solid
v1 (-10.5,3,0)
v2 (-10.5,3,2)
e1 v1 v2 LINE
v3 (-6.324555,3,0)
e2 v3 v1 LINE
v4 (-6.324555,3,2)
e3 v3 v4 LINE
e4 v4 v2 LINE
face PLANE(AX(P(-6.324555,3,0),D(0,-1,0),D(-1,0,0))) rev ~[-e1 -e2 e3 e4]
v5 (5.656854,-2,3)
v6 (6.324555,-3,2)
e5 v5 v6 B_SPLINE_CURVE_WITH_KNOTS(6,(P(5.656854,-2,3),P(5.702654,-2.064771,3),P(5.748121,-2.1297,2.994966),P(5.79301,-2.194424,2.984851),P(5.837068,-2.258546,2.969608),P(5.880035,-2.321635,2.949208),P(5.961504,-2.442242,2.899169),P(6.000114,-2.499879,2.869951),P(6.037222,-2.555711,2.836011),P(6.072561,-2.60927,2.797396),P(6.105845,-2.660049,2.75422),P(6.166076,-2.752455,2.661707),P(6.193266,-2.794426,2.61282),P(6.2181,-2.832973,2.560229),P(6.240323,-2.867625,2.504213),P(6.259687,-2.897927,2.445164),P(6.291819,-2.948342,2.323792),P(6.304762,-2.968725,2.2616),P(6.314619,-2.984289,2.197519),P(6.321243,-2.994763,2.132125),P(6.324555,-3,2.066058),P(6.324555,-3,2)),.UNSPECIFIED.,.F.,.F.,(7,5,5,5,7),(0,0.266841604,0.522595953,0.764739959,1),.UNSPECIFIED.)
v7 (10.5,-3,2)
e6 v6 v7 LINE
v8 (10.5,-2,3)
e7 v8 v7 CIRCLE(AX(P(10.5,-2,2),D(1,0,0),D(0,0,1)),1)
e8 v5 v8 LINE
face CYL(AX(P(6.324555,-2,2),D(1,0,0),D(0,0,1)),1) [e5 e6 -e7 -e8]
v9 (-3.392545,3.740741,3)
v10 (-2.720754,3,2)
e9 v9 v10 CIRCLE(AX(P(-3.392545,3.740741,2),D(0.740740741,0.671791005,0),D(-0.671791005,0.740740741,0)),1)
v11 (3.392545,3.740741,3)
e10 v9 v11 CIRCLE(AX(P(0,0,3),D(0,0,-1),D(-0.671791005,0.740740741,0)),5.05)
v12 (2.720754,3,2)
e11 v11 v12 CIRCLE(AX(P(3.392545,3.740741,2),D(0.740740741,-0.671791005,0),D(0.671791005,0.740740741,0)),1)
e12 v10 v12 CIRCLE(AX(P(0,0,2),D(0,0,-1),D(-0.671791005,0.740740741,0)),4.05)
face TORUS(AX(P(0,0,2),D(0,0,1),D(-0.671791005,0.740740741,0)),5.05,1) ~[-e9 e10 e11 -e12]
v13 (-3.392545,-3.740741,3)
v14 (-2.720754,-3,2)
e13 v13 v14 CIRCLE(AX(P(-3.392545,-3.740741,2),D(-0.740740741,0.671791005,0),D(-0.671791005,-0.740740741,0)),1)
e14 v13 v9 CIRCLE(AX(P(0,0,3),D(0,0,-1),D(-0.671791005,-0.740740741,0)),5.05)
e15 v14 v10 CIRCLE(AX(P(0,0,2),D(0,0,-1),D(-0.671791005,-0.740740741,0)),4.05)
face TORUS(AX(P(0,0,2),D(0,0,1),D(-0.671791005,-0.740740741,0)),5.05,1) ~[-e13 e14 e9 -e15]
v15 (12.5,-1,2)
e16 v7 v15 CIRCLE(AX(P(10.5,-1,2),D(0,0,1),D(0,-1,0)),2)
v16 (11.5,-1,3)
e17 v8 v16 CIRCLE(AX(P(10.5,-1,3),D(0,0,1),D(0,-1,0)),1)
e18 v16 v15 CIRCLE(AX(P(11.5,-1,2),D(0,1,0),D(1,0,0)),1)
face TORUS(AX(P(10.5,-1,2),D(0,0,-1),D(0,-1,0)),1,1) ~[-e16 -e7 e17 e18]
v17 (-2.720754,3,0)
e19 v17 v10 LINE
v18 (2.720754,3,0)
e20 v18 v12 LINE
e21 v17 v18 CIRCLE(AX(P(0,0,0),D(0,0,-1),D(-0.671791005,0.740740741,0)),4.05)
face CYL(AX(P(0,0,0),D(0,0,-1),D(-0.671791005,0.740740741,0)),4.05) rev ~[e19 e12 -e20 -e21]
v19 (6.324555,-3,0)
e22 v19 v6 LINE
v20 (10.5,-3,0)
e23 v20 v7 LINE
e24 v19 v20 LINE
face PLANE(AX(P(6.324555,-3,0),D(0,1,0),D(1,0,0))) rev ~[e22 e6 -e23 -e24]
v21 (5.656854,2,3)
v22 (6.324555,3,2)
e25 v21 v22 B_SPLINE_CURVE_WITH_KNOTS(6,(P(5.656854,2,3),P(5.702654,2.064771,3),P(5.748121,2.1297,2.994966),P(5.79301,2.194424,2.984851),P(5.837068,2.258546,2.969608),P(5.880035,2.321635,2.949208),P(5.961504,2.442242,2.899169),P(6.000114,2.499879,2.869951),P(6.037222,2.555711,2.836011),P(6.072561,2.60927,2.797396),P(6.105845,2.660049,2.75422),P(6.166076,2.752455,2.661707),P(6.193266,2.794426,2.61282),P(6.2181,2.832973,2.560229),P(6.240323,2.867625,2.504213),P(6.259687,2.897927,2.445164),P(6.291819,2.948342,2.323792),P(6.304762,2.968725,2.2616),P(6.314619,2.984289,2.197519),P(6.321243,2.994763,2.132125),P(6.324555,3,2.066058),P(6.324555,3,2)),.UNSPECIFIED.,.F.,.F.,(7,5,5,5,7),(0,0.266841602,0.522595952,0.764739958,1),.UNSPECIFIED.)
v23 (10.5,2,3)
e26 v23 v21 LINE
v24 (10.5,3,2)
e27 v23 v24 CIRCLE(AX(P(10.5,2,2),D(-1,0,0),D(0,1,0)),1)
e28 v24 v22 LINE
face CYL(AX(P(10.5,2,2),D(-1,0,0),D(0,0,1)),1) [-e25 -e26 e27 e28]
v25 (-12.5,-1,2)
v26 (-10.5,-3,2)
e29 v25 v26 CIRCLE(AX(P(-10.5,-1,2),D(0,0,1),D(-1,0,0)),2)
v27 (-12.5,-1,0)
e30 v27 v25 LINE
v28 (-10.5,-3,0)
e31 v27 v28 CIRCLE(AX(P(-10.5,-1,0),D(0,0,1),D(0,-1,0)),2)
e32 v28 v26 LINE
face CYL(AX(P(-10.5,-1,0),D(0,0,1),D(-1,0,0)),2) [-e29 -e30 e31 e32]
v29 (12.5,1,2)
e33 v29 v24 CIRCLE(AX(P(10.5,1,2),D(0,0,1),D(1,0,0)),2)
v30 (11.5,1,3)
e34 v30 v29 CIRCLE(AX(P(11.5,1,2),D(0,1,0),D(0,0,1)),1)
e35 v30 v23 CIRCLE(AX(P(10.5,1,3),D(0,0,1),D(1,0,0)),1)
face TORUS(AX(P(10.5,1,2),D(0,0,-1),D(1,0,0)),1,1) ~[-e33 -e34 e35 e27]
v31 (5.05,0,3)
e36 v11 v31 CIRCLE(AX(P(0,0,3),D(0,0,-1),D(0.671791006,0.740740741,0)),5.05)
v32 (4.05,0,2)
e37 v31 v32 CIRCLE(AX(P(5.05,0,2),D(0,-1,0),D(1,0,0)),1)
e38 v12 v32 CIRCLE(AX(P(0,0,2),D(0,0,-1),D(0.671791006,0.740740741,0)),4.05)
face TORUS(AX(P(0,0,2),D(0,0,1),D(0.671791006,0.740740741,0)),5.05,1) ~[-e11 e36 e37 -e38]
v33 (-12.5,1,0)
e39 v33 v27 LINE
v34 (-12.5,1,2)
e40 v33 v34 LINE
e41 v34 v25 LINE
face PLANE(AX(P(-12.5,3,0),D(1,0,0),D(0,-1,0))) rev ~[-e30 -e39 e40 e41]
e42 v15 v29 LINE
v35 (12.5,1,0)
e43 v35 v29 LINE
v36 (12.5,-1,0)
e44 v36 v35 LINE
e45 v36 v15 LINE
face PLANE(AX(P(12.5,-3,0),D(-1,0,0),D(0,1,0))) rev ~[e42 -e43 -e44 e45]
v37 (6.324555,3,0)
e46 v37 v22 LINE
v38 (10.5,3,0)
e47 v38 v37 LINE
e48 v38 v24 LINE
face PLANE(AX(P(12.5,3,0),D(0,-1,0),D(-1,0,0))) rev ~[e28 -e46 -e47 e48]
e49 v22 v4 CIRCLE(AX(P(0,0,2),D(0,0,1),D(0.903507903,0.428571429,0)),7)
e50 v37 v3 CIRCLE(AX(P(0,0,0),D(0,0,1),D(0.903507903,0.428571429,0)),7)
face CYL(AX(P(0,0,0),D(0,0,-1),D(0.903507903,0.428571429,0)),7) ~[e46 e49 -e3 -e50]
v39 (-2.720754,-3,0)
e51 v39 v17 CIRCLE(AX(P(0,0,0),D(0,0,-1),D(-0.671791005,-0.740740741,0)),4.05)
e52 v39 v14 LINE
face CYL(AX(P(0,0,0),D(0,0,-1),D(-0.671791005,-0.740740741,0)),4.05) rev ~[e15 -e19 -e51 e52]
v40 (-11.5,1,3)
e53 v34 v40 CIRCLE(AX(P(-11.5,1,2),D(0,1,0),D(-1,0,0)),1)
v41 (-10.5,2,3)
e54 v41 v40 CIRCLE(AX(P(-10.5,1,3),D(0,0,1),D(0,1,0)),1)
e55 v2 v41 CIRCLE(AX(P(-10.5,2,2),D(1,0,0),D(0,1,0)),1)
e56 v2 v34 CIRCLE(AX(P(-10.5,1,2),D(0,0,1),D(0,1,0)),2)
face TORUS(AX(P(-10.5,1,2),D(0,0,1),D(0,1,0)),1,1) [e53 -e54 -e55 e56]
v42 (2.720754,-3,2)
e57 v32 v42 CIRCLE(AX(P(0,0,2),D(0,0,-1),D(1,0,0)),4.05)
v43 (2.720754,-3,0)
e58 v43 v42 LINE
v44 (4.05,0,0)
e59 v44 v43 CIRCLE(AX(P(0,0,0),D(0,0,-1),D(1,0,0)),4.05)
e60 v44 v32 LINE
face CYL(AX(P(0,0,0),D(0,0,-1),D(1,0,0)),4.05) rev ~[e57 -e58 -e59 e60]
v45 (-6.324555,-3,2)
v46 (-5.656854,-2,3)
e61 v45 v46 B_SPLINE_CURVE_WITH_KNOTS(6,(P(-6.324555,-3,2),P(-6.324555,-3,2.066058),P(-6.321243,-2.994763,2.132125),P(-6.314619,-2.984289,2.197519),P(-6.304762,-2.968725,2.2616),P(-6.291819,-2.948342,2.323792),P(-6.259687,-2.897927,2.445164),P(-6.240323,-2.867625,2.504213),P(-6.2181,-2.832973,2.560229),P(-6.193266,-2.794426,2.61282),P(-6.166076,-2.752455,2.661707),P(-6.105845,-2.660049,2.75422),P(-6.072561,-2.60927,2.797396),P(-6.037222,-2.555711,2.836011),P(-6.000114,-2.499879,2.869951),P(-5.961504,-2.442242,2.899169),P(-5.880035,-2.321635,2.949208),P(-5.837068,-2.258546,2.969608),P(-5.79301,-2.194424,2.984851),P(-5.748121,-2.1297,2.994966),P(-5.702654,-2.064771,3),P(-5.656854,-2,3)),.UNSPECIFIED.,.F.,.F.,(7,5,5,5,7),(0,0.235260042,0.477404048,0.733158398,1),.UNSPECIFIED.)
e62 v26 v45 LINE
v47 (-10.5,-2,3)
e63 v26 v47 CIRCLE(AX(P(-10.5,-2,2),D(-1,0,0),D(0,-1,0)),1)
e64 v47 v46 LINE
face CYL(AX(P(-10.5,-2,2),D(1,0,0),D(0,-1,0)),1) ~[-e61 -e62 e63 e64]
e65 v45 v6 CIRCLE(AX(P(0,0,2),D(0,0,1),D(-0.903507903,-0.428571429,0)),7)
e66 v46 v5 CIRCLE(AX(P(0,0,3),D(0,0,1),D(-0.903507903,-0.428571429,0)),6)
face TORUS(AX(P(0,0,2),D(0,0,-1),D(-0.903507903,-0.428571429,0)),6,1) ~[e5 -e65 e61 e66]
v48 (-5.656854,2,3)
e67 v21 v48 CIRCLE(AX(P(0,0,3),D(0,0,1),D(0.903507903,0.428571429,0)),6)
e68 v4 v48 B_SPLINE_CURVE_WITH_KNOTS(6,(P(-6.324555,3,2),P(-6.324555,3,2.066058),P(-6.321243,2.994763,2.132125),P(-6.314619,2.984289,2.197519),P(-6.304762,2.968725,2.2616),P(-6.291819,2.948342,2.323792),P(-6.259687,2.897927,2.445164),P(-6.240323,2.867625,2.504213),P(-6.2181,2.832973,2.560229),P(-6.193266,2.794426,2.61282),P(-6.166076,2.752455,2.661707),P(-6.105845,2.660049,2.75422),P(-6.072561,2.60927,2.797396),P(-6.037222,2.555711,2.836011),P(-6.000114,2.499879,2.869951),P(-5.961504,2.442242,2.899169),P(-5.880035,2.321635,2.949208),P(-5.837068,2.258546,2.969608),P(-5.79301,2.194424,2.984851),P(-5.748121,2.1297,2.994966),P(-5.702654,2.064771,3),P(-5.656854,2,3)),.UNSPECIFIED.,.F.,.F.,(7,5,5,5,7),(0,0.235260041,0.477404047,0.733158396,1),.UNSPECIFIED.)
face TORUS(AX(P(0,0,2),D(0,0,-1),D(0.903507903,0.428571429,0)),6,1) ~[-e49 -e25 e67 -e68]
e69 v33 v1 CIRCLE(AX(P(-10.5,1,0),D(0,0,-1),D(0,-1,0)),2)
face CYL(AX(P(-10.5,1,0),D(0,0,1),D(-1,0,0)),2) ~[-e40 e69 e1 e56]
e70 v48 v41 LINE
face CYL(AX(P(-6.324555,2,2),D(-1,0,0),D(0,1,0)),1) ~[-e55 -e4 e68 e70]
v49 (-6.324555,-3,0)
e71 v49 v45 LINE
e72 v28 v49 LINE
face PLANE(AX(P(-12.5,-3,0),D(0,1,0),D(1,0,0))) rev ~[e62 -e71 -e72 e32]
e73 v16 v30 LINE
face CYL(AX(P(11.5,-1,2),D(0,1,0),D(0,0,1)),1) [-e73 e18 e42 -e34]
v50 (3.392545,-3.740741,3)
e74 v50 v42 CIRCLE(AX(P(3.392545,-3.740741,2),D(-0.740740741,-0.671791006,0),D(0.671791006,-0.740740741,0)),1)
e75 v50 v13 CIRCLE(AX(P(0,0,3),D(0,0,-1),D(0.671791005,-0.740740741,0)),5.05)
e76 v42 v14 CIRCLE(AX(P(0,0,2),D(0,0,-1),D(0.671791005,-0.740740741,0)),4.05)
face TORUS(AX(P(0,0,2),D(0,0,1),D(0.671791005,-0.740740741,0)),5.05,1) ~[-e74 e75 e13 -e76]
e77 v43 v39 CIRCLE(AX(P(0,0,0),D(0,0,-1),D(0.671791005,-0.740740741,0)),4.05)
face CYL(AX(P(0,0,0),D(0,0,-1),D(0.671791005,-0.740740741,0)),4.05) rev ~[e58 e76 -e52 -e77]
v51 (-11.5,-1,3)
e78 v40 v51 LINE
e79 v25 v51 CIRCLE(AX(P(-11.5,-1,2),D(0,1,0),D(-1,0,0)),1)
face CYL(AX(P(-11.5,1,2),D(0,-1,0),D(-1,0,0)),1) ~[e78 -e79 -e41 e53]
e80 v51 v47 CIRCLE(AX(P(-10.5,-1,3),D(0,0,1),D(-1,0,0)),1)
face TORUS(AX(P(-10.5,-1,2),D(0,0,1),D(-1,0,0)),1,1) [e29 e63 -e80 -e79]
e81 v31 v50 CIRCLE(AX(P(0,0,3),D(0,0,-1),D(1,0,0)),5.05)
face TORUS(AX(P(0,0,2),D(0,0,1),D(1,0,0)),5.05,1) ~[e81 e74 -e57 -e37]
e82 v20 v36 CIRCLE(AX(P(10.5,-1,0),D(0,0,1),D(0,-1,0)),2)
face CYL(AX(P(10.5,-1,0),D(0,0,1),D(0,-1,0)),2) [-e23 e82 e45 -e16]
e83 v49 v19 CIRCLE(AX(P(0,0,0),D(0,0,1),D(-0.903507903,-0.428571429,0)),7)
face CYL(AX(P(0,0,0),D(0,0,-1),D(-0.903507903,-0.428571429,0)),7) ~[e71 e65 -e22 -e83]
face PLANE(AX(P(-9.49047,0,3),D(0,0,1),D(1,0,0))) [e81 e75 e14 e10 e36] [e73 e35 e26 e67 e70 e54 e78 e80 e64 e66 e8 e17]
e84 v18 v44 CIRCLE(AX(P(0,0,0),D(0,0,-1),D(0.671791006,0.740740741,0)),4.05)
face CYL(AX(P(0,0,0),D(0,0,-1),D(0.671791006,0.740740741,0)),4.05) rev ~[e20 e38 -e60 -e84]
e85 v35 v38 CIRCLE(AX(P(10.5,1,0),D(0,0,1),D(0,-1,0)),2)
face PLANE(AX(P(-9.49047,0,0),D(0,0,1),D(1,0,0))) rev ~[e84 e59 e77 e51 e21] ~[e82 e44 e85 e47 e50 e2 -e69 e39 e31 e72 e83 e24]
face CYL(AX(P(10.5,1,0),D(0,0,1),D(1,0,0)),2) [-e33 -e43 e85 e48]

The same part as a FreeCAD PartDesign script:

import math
import FreeCAD as App
import Part
import Sketcher
Q = App.Units.Quantity


def edges_at(feature, points):
    """Names of the edges that pass closest to the given points."""
    edges = feature.Shape.Edges
    near = lambda p: min(range(len(edges)), key=lambda i: edges[i].distToShape(Part.Vertex(*p))[0])
    return sorted({f"Edge{near(p) + 1}" for p in points})

doc = App.newDocument("Part")
body = doc.addObject("PartDesign::Body", "Body")

sketch1 = body.newObject("Sketcher::SketchObject", "Sketch")
sketch1.AttachmentSupport = (doc.getObject("XY_Plane"), [""])
sketch1.MapMode = "FlatFace"
sketch1.addGeometry(Part.LineSegment(App.Vector(-12.5, 3, 0), App.Vector(-12.5, -3, 0)), False)
sketch1.addGeometry(Part.LineSegment(App.Vector(-12.5, -3, 0), App.Vector(-6.324555, -3, 0)), False)
sketch1.addGeometry(Part.ArcOfCircle(Part.Circle(App.Vector(0, 0, 0), App.Vector(0, 0, 1), 7), math.radians(-154.623066), math.radians(-25.376934)), False)
sketch1.addGeometry(Part.LineSegment(App.Vector(6.324555, -3, 0), App.Vector(12.5, -3, 0)), False)
sketch1.addGeometry(Part.LineSegment(App.Vector(12.5, -3, 0), App.Vector(12.5, 3, 0)), False)
sketch1.addGeometry(Part.LineSegment(App.Vector(12.5, 3, 0), App.Vector(6.324555, 3, 0)), False)
sketch1.addGeometry(Part.ArcOfCircle(Part.Circle(App.Vector(0, 0, 0), App.Vector(0, 0, 1), 7), math.radians(25.376934), math.radians(154.623066)), False)
sketch1.addGeometry(Part.LineSegment(App.Vector(-6.324555, 3, 0), App.Vector(-12.5, 3, 0)), False)
sketch1.addGeometry(Part.ArcOfCircle(Part.Circle(App.Vector(0, 0, 0), App.Vector(0, 0, 1), 4.05), math.radians(-132.205446), math.radians(-47.794554)), False)
sketch1.addGeometry(Part.ArcOfCircle(Part.Circle(App.Vector(0, 0, 0), App.Vector(0, 0, 1), 4.05), math.radians(132.205446), math.radians(227.794554)), False)
sketch1.addGeometry(Part.ArcOfCircle(Part.Circle(App.Vector(0, 0, 0), App.Vector(0, 0, 1), 4.05), math.radians(47.794554), math.radians(132.205446)), False)
sketch1.addGeometry(Part.ArcOfCircle(Part.Circle(App.Vector(0, 0, 0), App.Vector(0, 0, 1), 4.05), math.radians(0), math.radians(47.794554)), False)
sketch1.addGeometry(Part.ArcOfCircle(Part.Circle(App.Vector(0, 0, 0), App.Vector(0, 0, 1), 4.05), math.radians(-47.794554), math.radians(0)), False)
sketch1.addConstraint(Sketcher.Constraint("Coincident", 0, 2, 1, 1))
sketch1.addConstraint(Sketcher.Constraint("Coincident", 1, 2, 2, 1))
sketch1.addConstraint(Sketcher.Constraint("Coincident", 2, 2, 3, 1))
sketch1.addConstraint(Sketcher.Constraint("Coincident", 3, 2, 4, 1))
sketch1.addConstraint(Sketcher.Constraint("Coincident", 4, 2, 5, 1))
sketch1.addConstraint(Sketcher.Constraint("Coincident", 5, 2, 6, 1))
sketch1.addConstraint(Sketcher.Constraint("Coincident", 6, 2, 7, 1))
sketch1.addConstraint(Sketcher.Constraint("Coincident", 7, 2, 0, 1))
sketch1.addConstraint(Sketcher.Constraint("Tangent", 8, 1, 9, 2))
sketch1.addConstraint(Sketcher.Constraint("Tangent", 9, 1, 10, 2))
sketch1.addConstraint(Sketcher.Constraint("Tangent", 10, 1, 11, 2))
sketch1.addConstraint(Sketcher.Constraint("Tangent", 11, 1, 12, 2))
sketch1.addConstraint(Sketcher.Constraint("Tangent", 12, 1, 8, 2))
sketch1.addConstraint(Sketcher.Constraint("Vertical", 0))
sketch1.addConstraint(Sketcher.Constraint("Horizontal", 1))
sketch1.addConstraint(Sketcher.Constraint("Horizontal", 3))
sketch1.addConstraint(Sketcher.Constraint("Vertical", 4))
sketch1.addConstraint(Sketcher.Constraint("Horizontal", 5))
sketch1.addConstraint(Sketcher.Constraint("Horizontal", 7))
sketch1.addConstraint(Sketcher.Constraint("Coincident", 2, 3, -1, 1))
sketch1.addConstraint(Sketcher.Constraint("Coincident", 6, 3, -1, 1))
sketch1.addConstraint(Sketcher.Constraint("Coincident", 8, 3, -1, 1))
sketch1.addConstraint(Sketcher.Constraint("Coincident", 10, 3, -1, 1))
sketch1.addConstraint(Sketcher.Constraint("Equal", 2, 6))
sketch1.addConstraint(Sketcher.Constraint("Symmetric", 0, 2, 4, 2, -1, 1))
sketch1.addConstraint(Sketcher.Constraint("PointOnObject", 11, 1, -1))
sketch1.addConstraint(Sketcher.Constraint("Horizontal", 1, 2, 2, 2))
sketch1.addConstraint(Sketcher.Constraint("Horizontal", 5, 2, 6, 2))
sketch1.addConstraint(Sketcher.Constraint("Horizontal", 3, 2, 8, 1))
sketch1.addConstraint(Sketcher.Constraint("Horizontal", 7, 2, 9, 1))
sketch1.addConstraint(Sketcher.Constraint("Horizontal", 9, 1, 10, 1))
sketch1.addConstraint(Sketcher.Constraint("Horizontal", 8, 1, 12, 1))
sketch1.addConstraint(Sketcher.Constraint("Radius", 2, Q("7 mm")))
sketch1.addConstraint(Sketcher.Constraint("DistanceY", 0, 2, 0, 1, Q("6 mm")))
sketch1.addConstraint(Sketcher.Constraint("Radius", 8, Q("4.05 mm")))
sketch1.addConstraint(Sketcher.Constraint("DistanceX", 0, 2, -1, 1, Q("12.5 mm")))
pad1 = body.newObject("PartDesign::Pad", "Pad")
pad1.Profile = sketch1
pad1.Length = 3
doc.recompute()

fillet = body.newObject("PartDesign::Fillet", "Fillet")
fillet.Base = (pad1, edges_at(pad1, [
    (-12.5, -3, 1.5),
    (-12.5, 3, 1.5),
    (12.5, -3, 1.5),
    (12.5, 3, 1.5),
]))
fillet.Radius = 2
doc.recompute()

fillet2 = body.newObject("PartDesign::Fillet", "Fillet001")
fillet2.Base = (fillet, edges_at(fillet, [
    (-12.5, 0, 3),
    (-11.914, 2.414, 3),
    (-11.914, -2.414, 3),
    (-8.412, 3, 3),
    (-8.412, -3, 3),
    (0, 7, 3),
    (0, -7, 3),
    (8.412, 3, 3),
    (8.412, -3, 3),
    (11.914, 2.414, 3),
    (11.914, -2.414, 3),
    (12.5, 0, 3),
    (-4.05, 0, 3),
]))
fillet2.Radius = 1

doc.recompute()
